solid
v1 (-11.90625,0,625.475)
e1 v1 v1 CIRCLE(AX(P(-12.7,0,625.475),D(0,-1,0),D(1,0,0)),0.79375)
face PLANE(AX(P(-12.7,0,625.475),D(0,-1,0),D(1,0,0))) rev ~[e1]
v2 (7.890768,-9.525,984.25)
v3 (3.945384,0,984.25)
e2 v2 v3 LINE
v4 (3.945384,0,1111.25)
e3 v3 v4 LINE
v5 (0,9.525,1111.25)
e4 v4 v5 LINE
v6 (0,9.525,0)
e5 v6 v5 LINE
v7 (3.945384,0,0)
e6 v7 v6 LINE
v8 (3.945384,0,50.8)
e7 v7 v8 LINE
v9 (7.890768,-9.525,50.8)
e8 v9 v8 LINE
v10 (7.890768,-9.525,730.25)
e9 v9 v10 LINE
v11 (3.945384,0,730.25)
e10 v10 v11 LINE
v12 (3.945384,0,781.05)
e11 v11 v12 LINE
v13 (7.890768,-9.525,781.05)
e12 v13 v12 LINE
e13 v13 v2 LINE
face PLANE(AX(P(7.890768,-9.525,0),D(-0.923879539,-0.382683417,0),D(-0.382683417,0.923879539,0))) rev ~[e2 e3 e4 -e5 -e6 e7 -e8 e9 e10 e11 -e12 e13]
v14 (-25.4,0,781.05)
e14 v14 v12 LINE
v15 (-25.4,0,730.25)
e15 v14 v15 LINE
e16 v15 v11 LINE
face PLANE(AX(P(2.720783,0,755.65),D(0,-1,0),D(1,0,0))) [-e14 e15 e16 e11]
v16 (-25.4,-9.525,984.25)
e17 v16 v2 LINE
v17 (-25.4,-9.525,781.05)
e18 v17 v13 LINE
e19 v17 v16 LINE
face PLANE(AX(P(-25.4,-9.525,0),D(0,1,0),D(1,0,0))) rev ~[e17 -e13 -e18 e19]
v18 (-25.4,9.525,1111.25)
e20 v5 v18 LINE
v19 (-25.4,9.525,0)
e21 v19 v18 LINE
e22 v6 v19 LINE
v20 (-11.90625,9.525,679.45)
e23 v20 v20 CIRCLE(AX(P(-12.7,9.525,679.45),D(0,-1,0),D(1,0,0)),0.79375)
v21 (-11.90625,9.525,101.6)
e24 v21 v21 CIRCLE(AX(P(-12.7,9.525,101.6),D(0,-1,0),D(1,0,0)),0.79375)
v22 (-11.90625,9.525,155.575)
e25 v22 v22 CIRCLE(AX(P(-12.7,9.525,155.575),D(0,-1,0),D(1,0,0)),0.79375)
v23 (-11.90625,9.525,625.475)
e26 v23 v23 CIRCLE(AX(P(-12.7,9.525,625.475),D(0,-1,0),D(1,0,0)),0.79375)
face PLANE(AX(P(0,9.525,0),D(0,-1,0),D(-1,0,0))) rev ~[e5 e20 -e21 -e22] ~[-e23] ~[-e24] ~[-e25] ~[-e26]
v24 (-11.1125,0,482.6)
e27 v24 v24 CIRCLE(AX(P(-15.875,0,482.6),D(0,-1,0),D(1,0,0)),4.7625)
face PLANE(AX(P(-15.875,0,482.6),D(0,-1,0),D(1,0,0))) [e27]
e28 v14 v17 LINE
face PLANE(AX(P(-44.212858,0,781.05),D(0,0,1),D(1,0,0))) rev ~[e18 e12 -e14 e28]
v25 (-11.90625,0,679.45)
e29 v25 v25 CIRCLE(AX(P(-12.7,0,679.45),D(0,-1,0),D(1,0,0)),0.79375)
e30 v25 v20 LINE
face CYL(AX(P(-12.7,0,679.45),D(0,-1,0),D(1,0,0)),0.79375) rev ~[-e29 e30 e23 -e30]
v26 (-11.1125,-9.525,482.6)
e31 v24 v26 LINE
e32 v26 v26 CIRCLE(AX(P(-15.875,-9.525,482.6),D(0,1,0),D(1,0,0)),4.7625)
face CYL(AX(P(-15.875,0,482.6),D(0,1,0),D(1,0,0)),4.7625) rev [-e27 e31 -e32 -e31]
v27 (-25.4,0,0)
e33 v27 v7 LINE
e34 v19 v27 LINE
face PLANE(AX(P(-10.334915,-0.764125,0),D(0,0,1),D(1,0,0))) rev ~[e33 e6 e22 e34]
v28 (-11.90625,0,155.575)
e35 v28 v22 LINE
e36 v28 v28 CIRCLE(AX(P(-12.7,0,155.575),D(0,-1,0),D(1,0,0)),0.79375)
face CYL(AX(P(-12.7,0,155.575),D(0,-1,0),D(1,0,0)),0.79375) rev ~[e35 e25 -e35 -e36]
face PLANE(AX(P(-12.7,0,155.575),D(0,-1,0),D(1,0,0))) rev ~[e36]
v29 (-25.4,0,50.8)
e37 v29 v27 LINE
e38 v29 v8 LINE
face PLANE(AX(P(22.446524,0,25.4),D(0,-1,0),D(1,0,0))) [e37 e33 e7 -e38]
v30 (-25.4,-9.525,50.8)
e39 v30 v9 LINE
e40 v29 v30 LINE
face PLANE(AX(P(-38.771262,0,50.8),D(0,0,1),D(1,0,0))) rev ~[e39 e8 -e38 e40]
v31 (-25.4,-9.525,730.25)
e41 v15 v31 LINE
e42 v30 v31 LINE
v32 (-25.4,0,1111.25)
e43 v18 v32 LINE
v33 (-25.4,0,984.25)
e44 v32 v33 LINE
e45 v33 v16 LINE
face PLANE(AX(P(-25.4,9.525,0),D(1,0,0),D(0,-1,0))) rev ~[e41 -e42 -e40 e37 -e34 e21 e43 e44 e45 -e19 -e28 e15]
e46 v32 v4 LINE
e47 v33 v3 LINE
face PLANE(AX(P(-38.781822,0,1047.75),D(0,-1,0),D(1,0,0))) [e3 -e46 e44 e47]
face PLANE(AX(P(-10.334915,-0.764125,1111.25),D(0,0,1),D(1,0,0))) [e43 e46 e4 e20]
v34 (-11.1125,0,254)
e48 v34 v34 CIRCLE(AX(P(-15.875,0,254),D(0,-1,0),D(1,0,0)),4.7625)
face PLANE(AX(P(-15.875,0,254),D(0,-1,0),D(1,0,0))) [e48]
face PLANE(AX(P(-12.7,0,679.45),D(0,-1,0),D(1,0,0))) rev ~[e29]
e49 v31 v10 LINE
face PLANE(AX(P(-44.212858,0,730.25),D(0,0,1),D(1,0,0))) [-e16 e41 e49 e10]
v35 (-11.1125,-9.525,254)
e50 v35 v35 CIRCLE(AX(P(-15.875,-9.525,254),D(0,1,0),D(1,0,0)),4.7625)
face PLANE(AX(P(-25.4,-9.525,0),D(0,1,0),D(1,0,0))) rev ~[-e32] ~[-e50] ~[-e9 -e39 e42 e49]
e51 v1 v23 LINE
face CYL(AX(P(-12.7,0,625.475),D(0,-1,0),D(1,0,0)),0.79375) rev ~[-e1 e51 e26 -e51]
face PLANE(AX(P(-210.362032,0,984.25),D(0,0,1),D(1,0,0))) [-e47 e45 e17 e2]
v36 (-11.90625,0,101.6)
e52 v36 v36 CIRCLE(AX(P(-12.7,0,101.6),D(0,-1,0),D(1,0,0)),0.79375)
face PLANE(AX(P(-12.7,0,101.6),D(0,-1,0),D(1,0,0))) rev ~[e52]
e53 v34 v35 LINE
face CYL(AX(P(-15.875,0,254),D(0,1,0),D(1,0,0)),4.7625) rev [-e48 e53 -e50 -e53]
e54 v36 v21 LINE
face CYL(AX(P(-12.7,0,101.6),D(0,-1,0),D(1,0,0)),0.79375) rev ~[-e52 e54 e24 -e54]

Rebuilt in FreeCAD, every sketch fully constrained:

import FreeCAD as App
import Part
import Sketcher
from FreeCAD import Vector
Q = App.Units.Quantity

doc = App.newDocument("Part")
body = doc.addObject("PartDesign::Body", "Body")

# Sketch on XY plane
sketch1 = body.newObject("Sketcher::SketchObject", "Sketch")
sketch1.AttachmentSupport = (doc.getObject("XY_Plane"), [""])
sketch1.MapMode = "FlatFace"
sketch1.addGeometry([
    Part.LineSegment(Vector(8, -10, 0), Vector(0, 10, 0)),
    Part.LineSegment(Vector(0, 10, 0), Vector(-25, 10, 0)),
    Part.LineSegment(Vector(-25, 10, 0), Vector(-25, -10, 0)),
    Part.LineSegment(Vector(-25, -10, 0), Vector(8, -10, 0)),
], False)
sketch1.addConstraint([
    Sketcher.Constraint("Coincident", 0, 2, 1, 1),
    Sketcher.Constraint("Coincident", 1, 2, 2, 1),
    Sketcher.Constraint("Coincident", 2, 2, 3, 1),
    Sketcher.Constraint("Coincident", 3, 2, 0, 1),
    Sketcher.Constraint("Horizontal", 1),
    Sketcher.Constraint("Vertical", 2),
    Sketcher.Constraint("Horizontal", 3),
    Sketcher.Constraint("PointOnObject", 0, 2, -2),
    Sketcher.Constraint("DistanceX", 1, 2, 1, 1, Q("1 in")),
    Sketcher.Constraint("DistanceY", 2, 2, 2, 1, Q("0.75 in")),
    Sketcher.Constraint("Angle", 0, Q("112.499999 deg")),
    Sketcher.Constraint("DistanceY", -1, 1, 0, 2, Q("0.375 in")),
])
pad1 = body.newObject("PartDesign::Pad", "Pad")
pad1.Profile = sketch1
pad1.Length = Q("43.75 in")

# Sketch on XZ plane
sketch2 = body.newObject("Sketcher::SketchObject", "Sketch001")
sketch2.AttachmentSupport = (doc.getObject("XZ_Plane"), [""])
sketch2.MapMode = "FlatFace"
sketch2.addGeometry([
    Part.LineSegment(Vector(-39, 51, 0), Vector(-39, 0, 0)),  # 0
    Part.LineSegment(Vector(-39, 0, 0), Vector(84, 0, 0)),  # 1
    Part.LineSegment(Vector(84, 0, 0), Vector(84, 51, 0)),  # 2
    Part.LineSegment(Vector(84, 51, 0), Vector(-39, 51, 0)),  # 3
    Part.LineSegment(Vector(-44, 781, 0), Vector(-44, 730, 0)),  # 4
    Part.LineSegment(Vector(-44, 730, 0), Vector(50, 730, 0)),  # 5
    Part.LineSegment(Vector(50, 730, 0), Vector(50, 781, 0)),  # 6
    Part.LineSegment(Vector(50, 781, 0), Vector(-44, 781, 0)),  # 7
    Part.LineSegment(Vector(-210, 1111, 0), Vector(-210, 984, 0)),  # 8
    Part.LineSegment(Vector(-210, 984, 0), Vector(133, 984, 0)),  # 9
    Part.LineSegment(Vector(133, 984, 0), Vector(133, 1111, 0)),  # 10
    Part.LineSegment(Vector(133, 1111, 0), Vector(-210, 1111, 0)),  # 11
], False)
sketch2.addConstraint([
    Sketcher.Constraint("Coincident", 0, 2, 1, 1),
    Sketcher.Constraint("Coincident", 1, 2, 2, 1),
    Sketcher.Constraint("Coincident", 2, 2, 3, 1),
    Sketcher.Constraint("Coincident", 3, 2, 0, 1),
    Sketcher.Constraint("Coincident", 4, 2, 5, 1),
    Sketcher.Constraint("Coincident", 5, 2, 6, 1),
    Sketcher.Constraint("Coincident", 6, 2, 7, 1),
    Sketcher.Constraint("Coincident", 7, 2, 4, 1),
    Sketcher.Constraint("Coincident", 8, 2, 9, 1),
    Sketcher.Constraint("Coincident", 9, 2, 10, 1),
    Sketcher.Constraint("Coincident", 10, 2, 11, 1),
    Sketcher.Constraint("Coincident", 11, 2, 8, 1),
    Sketcher.Constraint("Vertical", 0),
    Sketcher.Constraint("Horizontal", 1),
    Sketcher.Constraint("Vertical", 2),
    Sketcher.Constraint("Horizontal", 3),
    Sketcher.Constraint("Vertical", 4),
    Sketcher.Constraint("Horizontal", 5),
    Sketcher.Constraint("Vertical", 6),
    Sketcher.Constraint("Horizontal", 7),
    Sketcher.Constraint("Vertical", 8),
    Sketcher.Constraint("Horizontal", 9),
    Sketcher.Constraint("Vertical", 10),
    Sketcher.Constraint("Horizontal", 11),
    Sketcher.Constraint("PointOnObject", 0, 2, -1),
    Sketcher.Constraint("Equal", 2, 4),
    Sketcher.Constraint("DistanceY", 0, 2, 0, 1, Q("2 in")),
    Sketcher.Constraint("DistanceY", 8, 2, 8, 1, Q("5 in")),
    Sketcher.Constraint("DistanceY", 7, 2, 8, 2, Q("8 in")),
    Sketcher.Constraint("DistanceY", -1, 1, 4, 2, Q("28.75 in")),
    Sketcher.Constraint("DistanceX", 5, 1, 5, 2, Q("93.867282 mm")),
    Sketcher.Constraint("DistanceX", 9, 1, 9, 2, Q("343.160421 mm")),
    Sketcher.Constraint("DistanceX", 1, 1, 1, 2, Q("122.435573 mm")),
    Sketcher.Constraint("DistanceX", -1, 1, 1, 2, Q("83.66431 mm")),
    Sketcher.Constraint("DistanceX", -1, 1, 9, 2, Q("132.798388 mm")),
    Sketcher.Constraint("DistanceX", 4, 2, 2, 2, Q("127.877168 mm")),
])
pocket1 = body.newObject("PartDesign::Pocket", "Pocket")
pocket1.Profile = sketch2
pocket1.Length = Q("1 in")
pocket1.Reversed = True

# Sketch on XZ plane
sketch3 = body.newObject("Sketcher::SketchObject", "Sketch002")
sketch3.AttachmentSupport = (doc.getObject("XZ_Plane"), [""])
sketch3.MapMode = "FlatFace"
sketch3.addGeometry([
    Part.Circle(Vector(12.7, 101.6, 0), Vector(0, 0, 1), 0.8),  # 0
    Part.Circle(Vector(12.7, 155.6, 0), Vector(0, 0, 1), 0.8),  # 1
    Part.Circle(Vector(12.7, 625.5, 0), Vector(0, 0, 1), 0.8),  # 2
    Part.Circle(Vector(12.7, 679.5, 0), Vector(0, 0, 1), 0.8),  # 3
    Part.Circle(Vector(-12.7, 625.5, 0), Vector(0, 0, 1), 0.8),  # 4
    Part.Circle(Vector(-12.7, 679.5, 0), Vector(0, 0, 1), 0.8),  # 5
    Part.Circle(Vector(-12.7, 101.6, 0), Vector(0, 0, 1), 0.8),  # 6
    Part.Circle(Vector(-12.7, 155.6, 0), Vector(0, 0, 1), 0.8),  # 7
], False)
sketch3.addConstraint([
    Sketcher.Constraint("Equal", 0, 1),
    Sketcher.Constraint("Equal", 1, 2),
    Sketcher.Constraint("Equal", 2, 3),
    Sketcher.Constraint("Equal", 3, 4),
    Sketcher.Constraint("Equal", 4, 5),
    Sketcher.Constraint("Equal", 5, 6),
    Sketcher.Constraint("Equal", 6, 7),
    Sketcher.Constraint("Symmetric", 2, 3, 4, 3, -2),
    Sketcher.Constraint("Symmetric", 3, 3, 5, 3, -2),
    Sketcher.Constraint("Symmetric", 0, 3, 6, 3, -2),
    Sketcher.Constraint("Symmetric", 1, 3, 7, 3, -2),
    Sketcher.Constraint("Vertical", 0, 3, 1, 3),
    Sketcher.Constraint("Vertical", 1, 3, 2, 3),
    Sketcher.Constraint("Vertical", 2, 3, 3, 3),
    Sketcher.Constraint("Diameter", 0, Q("0.0625 in")),
    Sketcher.Constraint("DistanceY", -1, 1, 0, 3, Q("4 in")),
    Sketcher.Constraint("DistanceX", 4, 3, 2, 3, Q("1 in")),
    Sketcher.Constraint("DistanceY", 1, 3, 2, 3, Q("18.5 in")),
    Sketcher.Constraint("DistanceY", -1, 1, 3, 3, Q("26.75 in")),
    Sketcher.Constraint("DistanceY", -1, 1, 1, 3, Q("6.125 in")),
])
pocket2 = body.newObject("PartDesign::Pocket", "Pocket001")
pocket2.Profile = sketch3
pocket2.Length = Q("1 in")

# Sketch on XZ plane
sketch4 = body.newObject("Sketcher::SketchObject", "Sketch003")
sketch4.AttachmentSupport = (doc.getObject("XZ_Plane"), [""])
sketch4.MapMode = "FlatFace"
sketch4.addGeometry([
    Part.Circle(Vector(-15.9, 254, 0), Vector(0, 0, 1), 4.8),
    Part.Circle(Vector(-15.9, 482.6, 0), Vector(0, 0, 1), 4.8),
], False)
sketch4.addConstraint([
    Sketcher.Constraint("Equal", 0, 1),
    Sketcher.Constraint("Vertical", 0, 3, 1, 3),
    Sketcher.Constraint("Diameter", 0, Q("0.375 in")),
    Sketcher.Constraint("DistanceY", -1, 1, 0, 3, Q("10 in")),
    Sketcher.Constraint("DistanceY", -1, 1, 1, 3, Q("19 in")),
    Sketcher.Constraint("DistanceX", 0, 3, -1, 1, Q("0.625 in")),
])
pocket3 = body.newObject("PartDesign::Pocket", "Pocket002")
pocket3.Profile = sketch4
pocket3.Length = Q("1 in")
pocket3.Reversed = True

doc.recompute()
